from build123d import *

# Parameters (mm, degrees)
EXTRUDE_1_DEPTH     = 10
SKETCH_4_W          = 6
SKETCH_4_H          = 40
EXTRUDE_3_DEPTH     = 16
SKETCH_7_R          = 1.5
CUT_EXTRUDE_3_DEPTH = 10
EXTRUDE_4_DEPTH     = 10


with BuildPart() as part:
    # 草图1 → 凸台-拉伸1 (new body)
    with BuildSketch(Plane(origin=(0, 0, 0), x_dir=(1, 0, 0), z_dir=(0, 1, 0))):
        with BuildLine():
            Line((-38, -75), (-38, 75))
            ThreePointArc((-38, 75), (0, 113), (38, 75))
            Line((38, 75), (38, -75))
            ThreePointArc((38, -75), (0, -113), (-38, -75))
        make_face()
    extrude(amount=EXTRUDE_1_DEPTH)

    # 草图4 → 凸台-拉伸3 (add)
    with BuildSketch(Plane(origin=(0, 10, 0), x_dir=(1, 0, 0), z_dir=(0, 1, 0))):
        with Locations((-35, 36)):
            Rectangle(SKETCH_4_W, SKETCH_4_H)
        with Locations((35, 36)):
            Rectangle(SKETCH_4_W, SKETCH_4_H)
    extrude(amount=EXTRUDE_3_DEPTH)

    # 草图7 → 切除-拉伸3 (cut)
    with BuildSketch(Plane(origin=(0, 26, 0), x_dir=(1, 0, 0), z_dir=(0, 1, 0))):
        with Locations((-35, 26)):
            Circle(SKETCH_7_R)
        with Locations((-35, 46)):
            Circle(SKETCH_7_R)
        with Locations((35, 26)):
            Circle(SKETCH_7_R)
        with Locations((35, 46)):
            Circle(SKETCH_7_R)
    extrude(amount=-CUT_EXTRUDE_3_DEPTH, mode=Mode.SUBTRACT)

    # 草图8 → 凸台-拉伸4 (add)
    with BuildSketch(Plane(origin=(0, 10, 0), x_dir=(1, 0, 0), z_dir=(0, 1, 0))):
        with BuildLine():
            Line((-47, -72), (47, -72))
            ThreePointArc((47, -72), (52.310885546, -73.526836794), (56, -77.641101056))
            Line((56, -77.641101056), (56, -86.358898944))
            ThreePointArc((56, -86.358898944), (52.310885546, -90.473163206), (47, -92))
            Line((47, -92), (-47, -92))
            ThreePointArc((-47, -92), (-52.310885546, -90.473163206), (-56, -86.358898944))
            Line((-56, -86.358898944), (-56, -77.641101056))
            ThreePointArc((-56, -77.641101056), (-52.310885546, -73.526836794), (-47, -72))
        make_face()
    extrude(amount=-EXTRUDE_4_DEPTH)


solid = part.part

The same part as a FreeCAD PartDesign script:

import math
import FreeCAD as App
import Part
import Sketcher

V = App.Vector
Q = App.Units.Quantity


def add_polygon(sketch, points):
    """Adds a closed chain of lines whose ends are joined by coincident constraints."""
    first, n = sketch.GeometryCount, len(points)
    for a, b in zip(points, points[1:] + points[:1]):
        sketch.addGeometry(Part.LineSegment(App.Vector(*a, 0), App.Vector(*b, 0)), False)
    for i in range(n):
        sketch.addConstraint(Sketcher.Constraint("Coincident", first + i, 2, first + (i + 1) % n, 1))

doc = App.newDocument("Part")
params = doc.addObject("Spreadsheet::Sheet", "Params")
for row, (alias, value) in enumerate([
    ("sketch1_radius", "38 mm"),
    ("sketch1_height", "150 mm"),
    ("pad1_length", "10 mm"),
    ("sketch2_width", "6 mm"),
    ("sketch2_height", "40 mm"),
    ("pad2_length", "16 mm"),
    ("sketch3_diameter", "3 mm"),
    ("pocket1_length", "10 mm"),
    ("sketch4_radius", "10 mm"),
    ("sketch4_width", "94 mm"),
    ("pad3_length", "10 mm"),
], start=1):
    params.set(f"A{row}", alias)
    params.set(f"B{row}", "=" + value)
    params.setAlias(f"B{row}", alias)

body = doc.addObject("PartDesign::Body", "Body")

# Sketch on XZ plane
sketch1 = body.newObject("Sketcher::SketchObject", "Sketch")
sketch1.AttachmentSupport = (doc.getObject("XZ_Plane"), [""])
sketch1.MapMode = "FlatFace"
sketch1.addGeometry([
    Part.LineSegment(V(-38, -75, 0), V(-38, 75, 0)),
    Part.ArcOfCircle(Part.Circle(V(0, 75, 0), V(0, 0, 1), 38), math.radians(0), math.radians(180)),
    Part.LineSegment(V(38, 75, 0), V(38, -75, 0)),
    Part.ArcOfCircle(Part.Circle(V(0, -75, 0), V(0, 0, 1), 38), math.radians(180), math.radians(360)),
], False)
sketch1.addConstraint([
    Sketcher.Constraint("Tangent", 0, 2, 1, 2),
    Sketcher.Constraint("Tangent", 1, 1, 2, 1),
    Sketcher.Constraint("Tangent", 2, 2, 3, 2),
    Sketcher.Constraint("Tangent", 3, 1, 0, 1),
    Sketcher.Constraint("Vertical", 0),
    Sketcher.Constraint("Vertical", 2),
    Sketcher.Constraint("Symmetric", 1, 3, 3, 3, -1, 1),
    Sketcher.Constraint("Radius", 1, Q("38 mm")),
    Sketcher.Constraint("DistanceY", 0, 1, 0, 2, Q("150 mm")),
])
sketch1.setExpression("Constraints[7]", "Params.sketch1_radius")
sketch1.setExpression("Constraints[8]", "Params.sketch1_height")
pad1 = body.newObject("PartDesign::Pad", "Pad")
pad1.Profile = sketch1
pad1.setExpression("Length", "Params.pad1_length")
pad1.Reversed = True

# Sketch on XZ plane
sketch2 = body.newObject("Sketcher::SketchObject", "Sketch001")
sketch2.AttachmentSupport = (doc.getObject("XZ_Plane"), [""])
sketch2.MapMode = "FlatFace"
sketch2.AttachmentOffset = App.Placement(V(0, 0, -10), App.Rotation())
add_polygon(sketch2, [(-38, -56), (-38, -16), (-32, -16), (-32, -56)])  # lines 0-3
add_polygon(sketch2, [(32, -56), (32, -16), (38, -16), (38, -56)])  # lines 4-7
sketch2.addConstraint([
    Sketcher.Constraint("Vertical", 0),
    Sketcher.Constraint("Horizontal", 1),
    Sketcher.Constraint("Vertical", 2),
    Sketcher.Constraint("Horizontal", 3),
    Sketcher.Constraint("Vertical", 4),
    Sketcher.Constraint("Horizontal", 5),
    Sketcher.Constraint("Vertical", 6),
    Sketcher.Constraint("Horizontal", 7),
    Sketcher.Constraint("Symmetric", 1, 2, 4, 2, -2),
    Sketcher.Constraint("Symmetric", 3, 2, 6, 2, -2),
    Sketcher.Constraint("DistanceX", 1, 1, 1, 2, Q("6 mm")),
    Sketcher.Constraint("DistanceY", 0, 1, 0, 2, Q("40 mm")),
    Sketcher.Constraint("DistanceX", 0, 2, -1, 1, Q("38 mm")),
    Sketcher.Constraint("DistanceY", 0, 2, -1, 1, Q("16 mm")),
])
sketch2.setExpression("Constraints[18]", "Params.sketch2_width")
sketch2.setExpression("Constraints[19]", "Params.sketch2_height")
pad2 = body.newObject("PartDesign::Pad", "Pad001")
pad2.Profile = sketch2
pad2.setExpression("Length", "Params.pad2_length")
pad2.Reversed = True

# Sketch on XZ plane
sketch3 = body.newObject("Sketcher::SketchObject", "Sketch002")
sketch3.AttachmentSupport = (doc.getObject("XZ_Plane"), [""])
sketch3.MapMode = "FlatFace"
sketch3.AttachmentOffset = App.Placement(V(0, 0, -26), App.Rotation())
sketch3.addGeometry([
    Part.Circle(V(-35, -26, 0), V(0, 0, 1), 1.5),
    Part.Circle(V(-35, -46, 0), V(0, 0, 1), 1.5),
    Part.Circle(V(35, -26, 0), V(0, 0, 1), 1.5),
    Part.Circle(V(35, -46, 0), V(0, 0, 1), 1.5),
], False)
sketch3.addConstraint([
    Sketcher.Constraint("Equal", 0, 1),
    Sketcher.Constraint("Equal", 1, 2),
    Sketcher.Constraint("Equal", 2, 3),
    Sketcher.Constraint("Symmetric", 0, 3, 2, 3, -2),
    Sketcher.Constraint("Symmetric", 1, 3, 3, 3, -2),
    Sketcher.Constraint("Vertical", 0, 3, 1, 3),
    Sketcher.Constraint("Diameter", 0, Q("3 mm")),
    Sketcher.Constraint("DistanceX", 0, 3, -1, 1, Q("35 mm")),
    Sketcher.Constraint("DistanceY", 0, 3, -1, 1, Q("26 mm")),
    Sketcher.Constraint("DistanceY", 1, 3, -1, 1, Q("46 mm")),
])
sketch3.setExpression("Constraints[6]", "Params.sketch3_diameter")
pocket1 = body.newObject("PartDesign::Pocket", "Pocket")
pocket1.Profile = sketch3
pocket1.setExpression("Length", "Params.pocket1_length")
pocket1.Reversed = True

# Sketch on XZ plane
sketch4 = body.newObject("Sketcher::SketchObject", "Sketch003")
sketch4.AttachmentSupport = (doc.getObject("XZ_Plane"), [""])
sketch4.MapMode = "FlatFace"
sketch4.AttachmentOffset = App.Placement(V(0, 0, -10), App.Rotation())
sketch4.addGeometry([
    Part.LineSegment(V(47, 72, 0), V(-47, 72, 0)),  # 0
    Part.ArcOfCircle(Part.Circle(V(-47, 82, 0), V(0, 0, 1), 10), math.radians(-154.158067), math.radians(-90)),  # 1
    Part.LineSegment(V(-56, 77.641101, 0), V(-56, 86.358899, 0)),  # 2
    Part.ArcOfCircle(Part.Circle(V(-47, 82, 0), V(0, 0, 1), 10), math.radians(90), math.radians(154.158067)),  # 3
    Part.LineSegment(V(-47, 92, 0), V(47, 92, 0)),  # 4
    Part.ArcOfCircle(Part.Circle(V(47, 82, 0), V(0, 0, 1), 10), math.radians(25.841933), math.radians(90)),  # 5
    Part.LineSegment(V(56, 86.358899, 0), V(56, 77.641101, 0)),  # 6
    Part.ArcOfCircle(Part.Circle(V(47, 82, 0), V(0, 0, 1), 10), math.radians(-90), math.radians(-25.841933)),  # 7
], False)
sketch4.addConstraint([
    Sketcher.Constraint("Tangent", 0, 2, 1, 2),
    Sketcher.Constraint("Coincident", 1, 1, 2, 1),
    Sketcher.Constraint("Coincident", 2, 2, 3, 2),
    Sketcher.Constraint("Tangent", 3, 1, 4, 1),
    Sketcher.Constraint("Tangent", 4, 2, 5, 2),
    Sketcher.Constraint("Coincident", 5, 1, 6, 1),
    Sketcher.Constraint("Coincident", 6, 2, 7, 2),
    Sketcher.Constraint("Tangent", 7, 1, 0, 1),
    Sketcher.Constraint("Horizontal", 0),
    Sketcher.Constraint("Vertical", 2),
    Sketcher.Constraint("Horizontal", 4),
    Sketcher.Constraint("Vertical", 6),
    Sketcher.Constraint("Coincident", 3, 3, 1, 3),
    Sketcher.Constraint("Coincident", 7, 3, 5, 3),
    Sketcher.Constraint("Equal", 1, 3),
    Sketcher.Constraint("Equal", 3, 5),
    Sketcher.Constraint("Symmetric", 2, 2, 5, 1, -2),
    Sketcher.Constraint("Radius", 1, Q("10 mm")),
    Sketcher.Constraint("DistanceX", 0, 2, 0, 1, Q("94 mm")),
    Sketcher.Constraint("DistanceY", -1, 1, 1, 3, Q("82 mm")),
    Sketcher.Constraint("DistanceX", 1, 1, -1, 1, Q("56 mm")),
])
sketch4.setExpression("Constraints[17]", "Params.sketch4_radius")
sketch4.setExpression("Constraints[18]", "Params.sketch4_width")
pad3 = body.newObject("PartDesign::Pad", "Pad002")
pad3.Profile = sketch4
pad3.setExpression("Length", "Params.pad3_length")

doc.recompute()
